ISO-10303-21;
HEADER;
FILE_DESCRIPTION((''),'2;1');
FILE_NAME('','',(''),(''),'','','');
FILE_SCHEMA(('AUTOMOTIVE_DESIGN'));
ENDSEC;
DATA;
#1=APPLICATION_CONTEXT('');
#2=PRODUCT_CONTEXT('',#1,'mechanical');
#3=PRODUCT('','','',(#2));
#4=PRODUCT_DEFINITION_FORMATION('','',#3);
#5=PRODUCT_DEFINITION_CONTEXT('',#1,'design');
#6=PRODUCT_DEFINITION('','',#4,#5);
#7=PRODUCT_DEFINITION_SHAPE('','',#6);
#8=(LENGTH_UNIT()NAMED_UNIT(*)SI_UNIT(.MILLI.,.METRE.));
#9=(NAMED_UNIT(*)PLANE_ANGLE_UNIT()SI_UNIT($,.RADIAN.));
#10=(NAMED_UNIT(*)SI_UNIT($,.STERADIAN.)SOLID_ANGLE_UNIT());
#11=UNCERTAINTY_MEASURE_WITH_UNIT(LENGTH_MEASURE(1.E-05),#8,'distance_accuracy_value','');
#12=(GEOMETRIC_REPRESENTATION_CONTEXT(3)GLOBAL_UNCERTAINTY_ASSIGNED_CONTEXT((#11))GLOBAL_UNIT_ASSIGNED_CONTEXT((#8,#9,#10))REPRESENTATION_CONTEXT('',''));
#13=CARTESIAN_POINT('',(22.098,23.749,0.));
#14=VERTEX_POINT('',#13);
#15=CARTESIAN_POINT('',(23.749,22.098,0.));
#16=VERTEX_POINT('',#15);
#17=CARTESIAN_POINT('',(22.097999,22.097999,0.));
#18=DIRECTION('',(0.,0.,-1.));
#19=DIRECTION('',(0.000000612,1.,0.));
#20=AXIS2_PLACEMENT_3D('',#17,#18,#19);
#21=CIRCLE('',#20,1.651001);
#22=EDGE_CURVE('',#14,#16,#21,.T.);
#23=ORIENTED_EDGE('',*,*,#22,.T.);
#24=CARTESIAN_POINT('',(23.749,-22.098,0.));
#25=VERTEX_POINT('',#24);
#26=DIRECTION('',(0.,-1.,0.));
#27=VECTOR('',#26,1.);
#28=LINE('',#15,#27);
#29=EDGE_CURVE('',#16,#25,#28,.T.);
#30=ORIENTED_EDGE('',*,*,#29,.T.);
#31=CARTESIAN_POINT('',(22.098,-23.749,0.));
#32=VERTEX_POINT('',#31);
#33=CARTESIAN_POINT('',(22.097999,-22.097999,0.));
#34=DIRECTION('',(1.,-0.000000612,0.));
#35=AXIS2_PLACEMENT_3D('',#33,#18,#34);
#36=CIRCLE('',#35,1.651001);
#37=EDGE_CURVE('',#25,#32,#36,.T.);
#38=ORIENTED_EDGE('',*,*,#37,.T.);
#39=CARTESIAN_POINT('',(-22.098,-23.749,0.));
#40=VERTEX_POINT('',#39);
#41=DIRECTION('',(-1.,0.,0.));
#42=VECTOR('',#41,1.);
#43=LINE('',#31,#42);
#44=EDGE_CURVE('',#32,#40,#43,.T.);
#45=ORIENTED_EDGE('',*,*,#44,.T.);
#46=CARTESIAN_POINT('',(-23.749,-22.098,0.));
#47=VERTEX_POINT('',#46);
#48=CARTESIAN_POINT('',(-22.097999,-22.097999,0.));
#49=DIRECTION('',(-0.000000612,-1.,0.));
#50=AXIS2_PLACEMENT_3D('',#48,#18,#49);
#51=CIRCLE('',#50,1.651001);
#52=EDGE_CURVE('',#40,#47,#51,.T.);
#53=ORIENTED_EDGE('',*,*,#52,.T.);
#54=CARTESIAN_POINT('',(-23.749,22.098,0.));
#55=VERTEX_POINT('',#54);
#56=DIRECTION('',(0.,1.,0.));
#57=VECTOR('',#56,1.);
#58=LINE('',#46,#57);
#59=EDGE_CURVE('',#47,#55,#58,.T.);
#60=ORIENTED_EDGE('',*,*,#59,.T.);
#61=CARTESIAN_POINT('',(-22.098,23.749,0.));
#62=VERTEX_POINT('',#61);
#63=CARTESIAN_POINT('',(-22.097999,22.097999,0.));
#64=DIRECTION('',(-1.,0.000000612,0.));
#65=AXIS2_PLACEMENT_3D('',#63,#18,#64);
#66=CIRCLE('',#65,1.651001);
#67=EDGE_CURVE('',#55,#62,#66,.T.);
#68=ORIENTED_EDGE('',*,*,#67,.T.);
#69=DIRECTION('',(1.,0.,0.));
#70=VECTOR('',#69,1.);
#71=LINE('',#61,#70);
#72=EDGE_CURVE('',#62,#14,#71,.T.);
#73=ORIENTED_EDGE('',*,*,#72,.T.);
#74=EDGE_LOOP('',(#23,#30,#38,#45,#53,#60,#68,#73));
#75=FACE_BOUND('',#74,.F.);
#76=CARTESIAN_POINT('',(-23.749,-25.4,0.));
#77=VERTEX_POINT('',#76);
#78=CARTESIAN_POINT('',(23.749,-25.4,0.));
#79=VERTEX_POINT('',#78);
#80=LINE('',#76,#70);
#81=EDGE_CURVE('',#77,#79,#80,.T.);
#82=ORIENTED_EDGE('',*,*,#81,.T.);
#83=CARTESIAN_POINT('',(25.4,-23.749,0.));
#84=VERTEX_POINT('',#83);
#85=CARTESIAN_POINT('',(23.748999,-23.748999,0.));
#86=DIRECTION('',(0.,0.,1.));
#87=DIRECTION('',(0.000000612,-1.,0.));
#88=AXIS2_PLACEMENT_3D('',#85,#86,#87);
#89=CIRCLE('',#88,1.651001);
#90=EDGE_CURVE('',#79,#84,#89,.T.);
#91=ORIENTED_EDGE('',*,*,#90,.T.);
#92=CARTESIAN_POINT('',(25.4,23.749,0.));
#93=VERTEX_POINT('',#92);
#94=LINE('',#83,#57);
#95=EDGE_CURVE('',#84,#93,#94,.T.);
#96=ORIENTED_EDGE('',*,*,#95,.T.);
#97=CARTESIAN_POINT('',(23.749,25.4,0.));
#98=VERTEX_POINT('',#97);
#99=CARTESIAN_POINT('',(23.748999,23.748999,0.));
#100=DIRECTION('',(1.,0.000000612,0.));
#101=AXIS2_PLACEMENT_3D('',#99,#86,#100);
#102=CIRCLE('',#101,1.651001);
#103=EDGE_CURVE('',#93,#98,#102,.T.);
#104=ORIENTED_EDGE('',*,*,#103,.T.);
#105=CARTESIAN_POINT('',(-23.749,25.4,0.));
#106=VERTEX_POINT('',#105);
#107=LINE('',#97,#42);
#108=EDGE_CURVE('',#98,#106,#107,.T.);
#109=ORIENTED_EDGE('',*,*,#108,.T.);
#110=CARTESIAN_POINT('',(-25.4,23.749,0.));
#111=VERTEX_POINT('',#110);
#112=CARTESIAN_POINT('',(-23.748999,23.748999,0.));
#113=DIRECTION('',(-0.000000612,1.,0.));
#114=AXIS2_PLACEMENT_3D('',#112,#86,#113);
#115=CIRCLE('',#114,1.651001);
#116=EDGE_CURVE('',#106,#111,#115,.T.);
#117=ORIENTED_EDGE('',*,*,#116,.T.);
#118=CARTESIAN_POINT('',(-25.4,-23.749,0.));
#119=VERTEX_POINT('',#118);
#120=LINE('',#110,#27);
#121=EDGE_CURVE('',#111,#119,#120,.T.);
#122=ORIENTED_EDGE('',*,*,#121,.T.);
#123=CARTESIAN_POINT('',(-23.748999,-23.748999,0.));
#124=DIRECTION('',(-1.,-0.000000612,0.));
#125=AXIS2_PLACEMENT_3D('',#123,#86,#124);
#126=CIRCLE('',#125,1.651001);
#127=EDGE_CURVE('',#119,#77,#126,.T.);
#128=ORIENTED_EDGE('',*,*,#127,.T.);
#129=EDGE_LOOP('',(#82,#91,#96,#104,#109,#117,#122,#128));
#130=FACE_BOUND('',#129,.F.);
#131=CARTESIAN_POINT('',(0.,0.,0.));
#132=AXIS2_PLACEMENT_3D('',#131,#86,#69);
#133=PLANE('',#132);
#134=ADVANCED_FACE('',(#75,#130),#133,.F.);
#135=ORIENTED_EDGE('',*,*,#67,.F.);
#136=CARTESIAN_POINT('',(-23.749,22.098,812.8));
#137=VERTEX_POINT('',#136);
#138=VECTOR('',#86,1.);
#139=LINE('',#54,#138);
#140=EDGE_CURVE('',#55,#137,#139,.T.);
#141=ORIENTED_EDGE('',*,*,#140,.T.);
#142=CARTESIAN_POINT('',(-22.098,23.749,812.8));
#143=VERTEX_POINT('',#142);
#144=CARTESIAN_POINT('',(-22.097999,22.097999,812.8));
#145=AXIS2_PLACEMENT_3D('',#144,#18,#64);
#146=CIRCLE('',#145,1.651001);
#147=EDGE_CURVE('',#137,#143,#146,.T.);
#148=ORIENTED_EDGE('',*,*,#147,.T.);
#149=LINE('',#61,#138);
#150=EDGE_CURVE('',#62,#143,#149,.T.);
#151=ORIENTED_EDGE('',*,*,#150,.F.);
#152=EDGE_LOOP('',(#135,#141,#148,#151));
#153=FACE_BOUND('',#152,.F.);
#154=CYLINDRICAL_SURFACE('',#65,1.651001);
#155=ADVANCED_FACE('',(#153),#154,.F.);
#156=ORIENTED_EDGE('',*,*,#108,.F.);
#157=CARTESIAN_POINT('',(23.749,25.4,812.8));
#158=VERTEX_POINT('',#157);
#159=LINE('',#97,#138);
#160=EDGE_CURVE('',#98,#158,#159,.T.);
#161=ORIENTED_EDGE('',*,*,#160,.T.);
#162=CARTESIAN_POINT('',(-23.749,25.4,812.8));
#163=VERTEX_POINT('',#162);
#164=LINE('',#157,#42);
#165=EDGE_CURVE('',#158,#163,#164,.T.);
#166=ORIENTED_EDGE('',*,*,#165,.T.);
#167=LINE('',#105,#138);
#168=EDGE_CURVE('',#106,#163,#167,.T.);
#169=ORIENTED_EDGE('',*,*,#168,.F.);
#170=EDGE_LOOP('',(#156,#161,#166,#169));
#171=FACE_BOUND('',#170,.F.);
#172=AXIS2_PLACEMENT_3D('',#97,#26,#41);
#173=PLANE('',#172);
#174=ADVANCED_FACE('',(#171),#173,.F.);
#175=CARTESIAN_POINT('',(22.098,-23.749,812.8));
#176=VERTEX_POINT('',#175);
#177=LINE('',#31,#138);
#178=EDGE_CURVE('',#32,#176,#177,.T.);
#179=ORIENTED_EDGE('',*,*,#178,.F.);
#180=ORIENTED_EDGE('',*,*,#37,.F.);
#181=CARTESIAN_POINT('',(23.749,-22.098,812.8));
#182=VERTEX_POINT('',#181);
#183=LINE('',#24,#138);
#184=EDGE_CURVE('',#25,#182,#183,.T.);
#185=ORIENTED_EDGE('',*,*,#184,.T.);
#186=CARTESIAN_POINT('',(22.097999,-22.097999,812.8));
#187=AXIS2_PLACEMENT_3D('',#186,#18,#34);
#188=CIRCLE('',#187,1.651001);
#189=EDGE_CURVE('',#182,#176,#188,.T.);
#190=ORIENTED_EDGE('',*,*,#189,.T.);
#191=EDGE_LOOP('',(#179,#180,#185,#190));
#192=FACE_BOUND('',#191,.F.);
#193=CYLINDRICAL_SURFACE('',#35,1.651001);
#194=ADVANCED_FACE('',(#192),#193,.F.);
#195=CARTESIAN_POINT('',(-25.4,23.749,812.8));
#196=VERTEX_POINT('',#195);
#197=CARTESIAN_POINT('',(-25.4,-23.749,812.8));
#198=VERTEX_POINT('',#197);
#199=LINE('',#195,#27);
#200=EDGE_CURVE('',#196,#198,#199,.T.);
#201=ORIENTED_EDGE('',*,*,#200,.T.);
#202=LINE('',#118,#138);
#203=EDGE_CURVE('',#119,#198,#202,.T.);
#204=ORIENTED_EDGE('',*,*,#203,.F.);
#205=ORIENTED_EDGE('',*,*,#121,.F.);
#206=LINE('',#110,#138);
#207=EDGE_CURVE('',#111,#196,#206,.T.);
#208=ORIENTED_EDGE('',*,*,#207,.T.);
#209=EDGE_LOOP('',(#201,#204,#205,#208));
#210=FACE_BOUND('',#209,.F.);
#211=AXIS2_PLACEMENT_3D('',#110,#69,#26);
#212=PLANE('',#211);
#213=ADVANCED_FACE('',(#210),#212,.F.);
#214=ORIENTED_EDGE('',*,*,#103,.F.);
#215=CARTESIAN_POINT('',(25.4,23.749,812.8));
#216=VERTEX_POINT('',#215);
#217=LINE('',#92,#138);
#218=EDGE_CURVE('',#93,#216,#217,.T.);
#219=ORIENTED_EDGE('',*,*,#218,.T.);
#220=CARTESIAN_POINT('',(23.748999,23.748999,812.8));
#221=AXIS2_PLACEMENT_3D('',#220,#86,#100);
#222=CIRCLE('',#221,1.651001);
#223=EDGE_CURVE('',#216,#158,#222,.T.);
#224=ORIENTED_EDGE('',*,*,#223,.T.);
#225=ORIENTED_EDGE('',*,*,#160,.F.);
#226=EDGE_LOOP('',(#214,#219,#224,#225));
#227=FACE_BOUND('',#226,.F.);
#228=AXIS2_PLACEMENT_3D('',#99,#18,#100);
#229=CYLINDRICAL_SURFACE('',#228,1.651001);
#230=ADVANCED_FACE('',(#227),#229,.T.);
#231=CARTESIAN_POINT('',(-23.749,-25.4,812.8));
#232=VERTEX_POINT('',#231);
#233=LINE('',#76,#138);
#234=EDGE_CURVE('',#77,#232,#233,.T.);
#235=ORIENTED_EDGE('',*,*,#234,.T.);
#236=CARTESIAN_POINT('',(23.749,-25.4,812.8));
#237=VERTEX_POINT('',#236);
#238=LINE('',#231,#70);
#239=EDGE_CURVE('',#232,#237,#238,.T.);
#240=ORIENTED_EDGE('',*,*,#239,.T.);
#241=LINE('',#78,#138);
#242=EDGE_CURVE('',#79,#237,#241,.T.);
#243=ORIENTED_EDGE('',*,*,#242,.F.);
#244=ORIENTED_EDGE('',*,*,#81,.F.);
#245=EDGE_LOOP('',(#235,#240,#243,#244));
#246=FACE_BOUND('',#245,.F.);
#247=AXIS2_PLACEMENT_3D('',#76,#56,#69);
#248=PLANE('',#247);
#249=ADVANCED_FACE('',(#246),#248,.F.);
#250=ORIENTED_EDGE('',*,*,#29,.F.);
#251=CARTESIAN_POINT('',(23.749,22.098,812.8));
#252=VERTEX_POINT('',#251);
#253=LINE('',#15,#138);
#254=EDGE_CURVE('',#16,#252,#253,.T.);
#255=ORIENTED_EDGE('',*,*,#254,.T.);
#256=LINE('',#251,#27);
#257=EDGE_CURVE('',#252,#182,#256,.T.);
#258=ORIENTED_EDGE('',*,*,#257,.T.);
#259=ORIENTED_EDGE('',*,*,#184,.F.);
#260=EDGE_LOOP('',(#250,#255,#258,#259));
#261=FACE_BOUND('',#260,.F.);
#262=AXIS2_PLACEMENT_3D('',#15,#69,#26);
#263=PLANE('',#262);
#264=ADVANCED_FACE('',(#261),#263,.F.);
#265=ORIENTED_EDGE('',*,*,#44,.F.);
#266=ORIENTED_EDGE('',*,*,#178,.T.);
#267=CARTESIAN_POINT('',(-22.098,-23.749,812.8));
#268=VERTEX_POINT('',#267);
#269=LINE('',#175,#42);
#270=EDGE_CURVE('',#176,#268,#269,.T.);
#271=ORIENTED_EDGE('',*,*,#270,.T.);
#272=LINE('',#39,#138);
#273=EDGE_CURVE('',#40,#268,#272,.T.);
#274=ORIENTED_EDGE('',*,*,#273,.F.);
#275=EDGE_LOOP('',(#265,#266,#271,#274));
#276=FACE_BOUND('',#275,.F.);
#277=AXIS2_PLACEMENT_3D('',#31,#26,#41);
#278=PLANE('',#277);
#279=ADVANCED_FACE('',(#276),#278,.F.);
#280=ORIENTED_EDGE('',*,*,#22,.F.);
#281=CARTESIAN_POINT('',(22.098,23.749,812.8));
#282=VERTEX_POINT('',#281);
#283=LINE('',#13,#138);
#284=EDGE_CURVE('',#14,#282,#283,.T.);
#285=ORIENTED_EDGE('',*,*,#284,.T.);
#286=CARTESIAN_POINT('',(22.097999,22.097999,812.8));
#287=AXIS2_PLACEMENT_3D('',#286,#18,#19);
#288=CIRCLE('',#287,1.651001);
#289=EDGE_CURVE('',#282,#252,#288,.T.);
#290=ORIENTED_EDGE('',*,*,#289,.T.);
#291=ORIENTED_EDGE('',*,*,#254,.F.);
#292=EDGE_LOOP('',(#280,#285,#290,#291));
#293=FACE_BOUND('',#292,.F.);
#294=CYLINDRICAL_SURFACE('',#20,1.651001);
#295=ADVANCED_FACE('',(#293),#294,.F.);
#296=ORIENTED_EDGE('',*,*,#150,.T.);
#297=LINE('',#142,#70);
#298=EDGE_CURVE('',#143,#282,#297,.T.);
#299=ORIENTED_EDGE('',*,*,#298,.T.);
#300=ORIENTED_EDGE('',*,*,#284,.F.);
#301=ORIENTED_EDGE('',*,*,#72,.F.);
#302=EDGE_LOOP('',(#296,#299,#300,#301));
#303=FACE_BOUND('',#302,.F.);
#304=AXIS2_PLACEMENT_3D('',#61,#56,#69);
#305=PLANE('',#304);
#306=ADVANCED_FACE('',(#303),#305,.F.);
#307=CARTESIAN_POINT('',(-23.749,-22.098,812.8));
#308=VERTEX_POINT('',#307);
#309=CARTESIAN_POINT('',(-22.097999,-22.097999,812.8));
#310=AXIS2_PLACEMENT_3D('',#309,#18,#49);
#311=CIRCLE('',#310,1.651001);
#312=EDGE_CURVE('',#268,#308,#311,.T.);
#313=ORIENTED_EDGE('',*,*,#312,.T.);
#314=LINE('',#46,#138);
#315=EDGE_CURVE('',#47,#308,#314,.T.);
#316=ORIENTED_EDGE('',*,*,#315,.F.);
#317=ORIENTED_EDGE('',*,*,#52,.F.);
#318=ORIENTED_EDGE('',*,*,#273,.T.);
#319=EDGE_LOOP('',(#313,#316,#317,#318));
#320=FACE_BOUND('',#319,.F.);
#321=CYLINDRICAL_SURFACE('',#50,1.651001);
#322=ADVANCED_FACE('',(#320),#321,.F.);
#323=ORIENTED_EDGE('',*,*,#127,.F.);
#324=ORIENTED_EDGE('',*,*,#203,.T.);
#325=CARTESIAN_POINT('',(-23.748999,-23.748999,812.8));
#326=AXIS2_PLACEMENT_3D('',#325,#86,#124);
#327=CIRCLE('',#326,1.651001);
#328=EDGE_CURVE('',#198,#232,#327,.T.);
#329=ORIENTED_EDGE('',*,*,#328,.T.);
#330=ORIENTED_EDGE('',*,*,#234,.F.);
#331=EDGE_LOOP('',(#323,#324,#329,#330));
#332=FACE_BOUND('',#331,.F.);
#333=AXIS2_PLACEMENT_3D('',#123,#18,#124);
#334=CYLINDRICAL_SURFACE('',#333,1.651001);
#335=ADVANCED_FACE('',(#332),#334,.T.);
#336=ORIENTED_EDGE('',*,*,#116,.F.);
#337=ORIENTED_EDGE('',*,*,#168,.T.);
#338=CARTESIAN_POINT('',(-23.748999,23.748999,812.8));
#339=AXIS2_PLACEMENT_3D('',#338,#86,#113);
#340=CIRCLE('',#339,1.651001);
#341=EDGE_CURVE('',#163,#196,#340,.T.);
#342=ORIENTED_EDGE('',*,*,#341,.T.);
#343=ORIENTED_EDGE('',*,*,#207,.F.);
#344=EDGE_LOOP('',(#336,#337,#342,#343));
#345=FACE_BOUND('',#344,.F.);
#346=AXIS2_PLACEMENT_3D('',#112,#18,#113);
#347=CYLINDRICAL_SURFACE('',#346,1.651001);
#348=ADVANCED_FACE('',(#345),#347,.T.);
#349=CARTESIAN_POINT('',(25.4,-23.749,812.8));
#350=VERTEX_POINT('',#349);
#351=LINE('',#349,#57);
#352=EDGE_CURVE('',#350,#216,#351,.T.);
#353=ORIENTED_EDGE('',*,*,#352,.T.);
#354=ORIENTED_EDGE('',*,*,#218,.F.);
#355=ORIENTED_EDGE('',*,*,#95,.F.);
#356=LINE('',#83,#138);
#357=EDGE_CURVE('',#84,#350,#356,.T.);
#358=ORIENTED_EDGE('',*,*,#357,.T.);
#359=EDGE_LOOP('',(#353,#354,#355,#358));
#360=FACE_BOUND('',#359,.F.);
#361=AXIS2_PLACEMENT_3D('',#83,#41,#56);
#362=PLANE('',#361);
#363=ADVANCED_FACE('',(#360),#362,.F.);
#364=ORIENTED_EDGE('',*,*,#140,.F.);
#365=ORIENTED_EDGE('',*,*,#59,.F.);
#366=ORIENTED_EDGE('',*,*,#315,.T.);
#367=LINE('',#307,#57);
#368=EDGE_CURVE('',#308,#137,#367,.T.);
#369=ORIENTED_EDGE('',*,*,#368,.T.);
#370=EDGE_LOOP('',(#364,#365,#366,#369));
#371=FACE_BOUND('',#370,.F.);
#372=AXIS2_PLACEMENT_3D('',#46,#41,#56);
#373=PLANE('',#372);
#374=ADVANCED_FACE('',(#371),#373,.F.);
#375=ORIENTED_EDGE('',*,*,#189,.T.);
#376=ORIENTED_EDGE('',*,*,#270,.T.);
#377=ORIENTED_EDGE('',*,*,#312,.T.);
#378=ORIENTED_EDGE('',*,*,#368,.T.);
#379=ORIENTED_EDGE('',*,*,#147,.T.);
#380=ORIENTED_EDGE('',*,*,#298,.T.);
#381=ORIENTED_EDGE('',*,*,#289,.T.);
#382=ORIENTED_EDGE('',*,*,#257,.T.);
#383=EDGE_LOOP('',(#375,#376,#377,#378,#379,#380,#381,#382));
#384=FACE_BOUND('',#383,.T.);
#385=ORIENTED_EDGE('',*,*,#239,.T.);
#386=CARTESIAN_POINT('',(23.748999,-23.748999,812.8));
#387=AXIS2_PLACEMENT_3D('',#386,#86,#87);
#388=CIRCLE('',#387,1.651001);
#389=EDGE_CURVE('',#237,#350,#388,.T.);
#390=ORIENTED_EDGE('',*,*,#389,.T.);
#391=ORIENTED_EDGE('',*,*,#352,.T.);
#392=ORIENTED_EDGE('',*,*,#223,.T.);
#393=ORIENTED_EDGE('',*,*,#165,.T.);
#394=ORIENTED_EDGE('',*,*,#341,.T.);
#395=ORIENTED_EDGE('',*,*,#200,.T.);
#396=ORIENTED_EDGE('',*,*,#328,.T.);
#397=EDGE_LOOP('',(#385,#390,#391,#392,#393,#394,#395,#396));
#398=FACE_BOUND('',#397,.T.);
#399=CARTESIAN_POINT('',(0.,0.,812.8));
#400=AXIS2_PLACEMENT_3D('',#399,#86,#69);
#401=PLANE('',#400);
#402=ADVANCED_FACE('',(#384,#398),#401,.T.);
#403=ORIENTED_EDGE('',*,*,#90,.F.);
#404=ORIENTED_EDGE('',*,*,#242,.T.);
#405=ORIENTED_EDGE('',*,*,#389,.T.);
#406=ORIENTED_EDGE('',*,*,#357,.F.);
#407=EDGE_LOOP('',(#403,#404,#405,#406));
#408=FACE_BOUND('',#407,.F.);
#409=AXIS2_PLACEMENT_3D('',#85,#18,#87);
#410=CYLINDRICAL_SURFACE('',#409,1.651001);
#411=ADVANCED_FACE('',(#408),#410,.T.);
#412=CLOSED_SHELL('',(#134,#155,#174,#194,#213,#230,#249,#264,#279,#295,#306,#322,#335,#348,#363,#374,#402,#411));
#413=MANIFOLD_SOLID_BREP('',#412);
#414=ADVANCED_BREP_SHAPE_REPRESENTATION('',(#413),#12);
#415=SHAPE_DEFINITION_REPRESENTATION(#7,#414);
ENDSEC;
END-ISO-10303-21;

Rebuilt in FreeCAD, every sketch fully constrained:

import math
import FreeCAD as App
import Part
import Sketcher
from FreeCAD import Vector
Q = App.Units.Quantity

doc = App.newDocument("Part")
body = doc.addObject("PartDesign::Body", "Body")

sketch1 = body.newObject("Sketcher::SketchObject", "Sketch")
sketch1.AttachmentSupport = (doc.getObject("XY_Plane"), [""])
sketch1.MapMode = "FlatFace"
sketch1.addGeometry([
    Part.LineSegment(Vector(-23.7, -25.4, 0), Vector(23.7, -25.4, 0)),
    Part.ArcOfCircle(Part.Circle(Vector(23.7, -23.7, 0), Vector(0, 0, 1), 1.7), math.radians(-90), math.radians(0)),
    Part.LineSegment(Vector(25.4, -23.7, 0), Vector(25.4, 23.7, 0)),
    Part.ArcOfCircle(Part.Circle(Vector(23.7, 23.7, 0), Vector(0, 0, 1), 1.7), math.radians(0), math.radians(90)),
    Part.LineSegment(Vector(23.7, 25.4, 0), Vector(-23.7, 25.4, 0)),
    Part.ArcOfCircle(Part.Circle(Vector(-23.7, 23.7, 0), Vector(0, 0, 1), 1.7), math.radians(90), math.radians(180)),
    Part.LineSegment(Vector(-25.4, 23.7, 0), Vector(-25.4, -23.7, 0)),
    Part.ArcOfCircle(Part.Circle(Vector(-23.7, -23.7, 0), Vector(0, 0, 1), 1.7), math.radians(-180), math.radians(-90)),
    Part.ArcOfCircle(Part.Circle(Vector(-22.1, 22.1, 0), Vector(0, 0, 1), 1.7), math.radians(90), math.radians(180)),
    Part.LineSegment(Vector(-22.1, 23.7, 0), Vector(22.1, 23.7, 0)),
    Part.ArcOfCircle(Part.Circle(Vector(22.1, 22.1, 0), Vector(0, 0, 1), 1.7), math.radians(0), math.radians(90)),
    Part.LineSegment(Vector(23.7, 22.1, 0), Vector(23.7, -22.1, 0)),
    Part.ArcOfCircle(Part.Circle(Vector(22.1, -22.1, 0), Vector(0, 0, 1), 1.7), math.radians(-90), math.radians(0)),
    Part.LineSegment(Vector(22.1, -23.7, 0), Vector(-22.1, -23.7, 0)),
    Part.ArcOfCircle(Part.Circle(Vector(-22.1, -22.1, 0), Vector(0, 0, 1), 1.7), math.radians(-180), math.radians(-90)),
    Part.LineSegment(Vector(-23.7, -22.1, 0), Vector(-23.7, 22.1, 0)),
], False)
sketch1.addConstraint([
    Sketcher.Constraint("Tangent", 0, 2, 1, 1),
    Sketcher.Constraint("Tangent", 1, 2, 2, 1),
    Sketcher.Constraint("Tangent", 2, 2, 3, 1),
    Sketcher.Constraint("Tangent", 3, 2, 4, 1),
    Sketcher.Constraint("Tangent", 4, 2, 5, 1),
    Sketcher.Constraint("Tangent", 5, 2, 6, 1),
    Sketcher.Constraint("Tangent", 6, 2, 7, 1),
    Sketcher.Constraint("Tangent", 7, 2, 0, 1),
    Sketcher.Constraint("Tangent", 8, 1, 9, 1),
    Sketcher.Constraint("Tangent", 9, 2, 10, 2),
    Sketcher.Constraint("Tangent", 10, 1, 11, 1),
    Sketcher.Constraint("Tangent", 11, 2, 12, 2),
    Sketcher.Constraint("Tangent", 12, 1, 13, 1),
    Sketcher.Constraint("Tangent", 13, 2, 14, 2),
    Sketcher.Constraint("Tangent", 14, 1, 15, 1),
    Sketcher.Constraint("Tangent", 15, 2, 8, 2),
    Sketcher.Constraint("Horizontal", 0),
    Sketcher.Constraint("Vertical", 2),
    Sketcher.Constraint("Horizontal", 4),
    Sketcher.Constraint("Vertical", 6),
    Sketcher.Constraint("Horizontal", 9),
    Sketcher.Constraint("Vertical", 11),
    Sketcher.Constraint("Horizontal", 13),
    Sketcher.Constraint("Vertical", 15),
    Sketcher.Constraint("Equal", 1, 3),
    Sketcher.Constraint("Equal", 3, 5),
    Sketcher.Constraint("Equal", 5, 7),
    Sketcher.Constraint("Equal", 7, 8),
    Sketcher.Constraint("Equal", 8, 10),
    Sketcher.Constraint("Equal", 10, 12),
    Sketcher.Constraint("Equal", 12, 14),
    Sketcher.Constraint("Symmetric", 1, 3, 5, 3, -1, 1),
    Sketcher.Constraint("Symmetric", 8, 3, 12, 3, -1, 1),
    Sketcher.Constraint("Horizontal", 5, 2, 8, 1),
    Sketcher.Constraint("Vertical", 3, 2, 10, 1),
    Sketcher.Constraint("Equal", 4, 2),
    Sketcher.Constraint("DistanceY", 0, 2, -1, 1, Q("1 in")),
    Sketcher.Constraint("Radius", 1, Q("0.065 in")),
])
pad1 = body.newObject("PartDesign::Pad", "Pad")
pad1.Profile = sketch1
pad1.Length = Q("32 in")

doc.recompute()
